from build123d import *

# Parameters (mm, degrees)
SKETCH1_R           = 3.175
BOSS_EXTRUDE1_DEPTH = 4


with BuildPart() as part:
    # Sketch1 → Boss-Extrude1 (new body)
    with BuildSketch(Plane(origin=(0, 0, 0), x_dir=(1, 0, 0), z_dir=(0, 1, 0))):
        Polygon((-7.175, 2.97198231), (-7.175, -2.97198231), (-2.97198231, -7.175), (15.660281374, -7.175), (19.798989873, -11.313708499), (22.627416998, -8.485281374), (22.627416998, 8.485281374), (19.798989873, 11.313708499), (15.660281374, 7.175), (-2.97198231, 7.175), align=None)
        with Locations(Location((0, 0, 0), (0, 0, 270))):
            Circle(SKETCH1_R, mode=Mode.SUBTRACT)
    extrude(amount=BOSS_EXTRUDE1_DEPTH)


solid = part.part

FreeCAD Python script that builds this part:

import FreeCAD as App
import Part
import Sketcher
from FreeCAD import Vector


def add_polygon(sketch, points):
    """Adds a closed chain of lines whose ends are joined by coincident constraints."""
    first, n = sketch.GeometryCount, len(points)
    for a, b in zip(points, points[1:] + points[:1]):
        sketch.addGeometry(Part.LineSegment(App.Vector(*a, 0), App.Vector(*b, 0)), False)
    for i in range(n):
        sketch.addConstraint(Sketcher.Constraint("Coincident", first + i, 2, first + (i + 1) % n, 1))

doc = App.newDocument("Part")
params = doc.addObject("Spreadsheet::Sheet", "Params")
for row, (alias, value) in enumerate([
    ("sketch1_diameter", "6.35 mm"),
    ("sketch1_length", "4 mm"),
    ("pad1_length", "4 mm"),
], start=1):
    params.set(f"A{row}", alias)
    params.set(f"B{row}", "=" + value)
    params.setAlias(f"B{row}", alias)

body = doc.addObject("PartDesign::Body", "Body")

# Sketch on XZ plane
sketch1 = body.newObject("Sketcher::SketchObject", "Sketch")
sketch1.AttachmentSupport = (doc.getObject("XZ_Plane"), [""])
sketch1.MapMode = "FlatFace"
add_polygon(sketch1, [(-7.2, -3), (-7.2, 3), (-3, 7.2), (15.7, 7.2), (19.8, 11.3), (22.6, 8.5), (22.6, -8.5), (19.8, -11.3), (15.7, -7.2), (-3, -7.2)])  # lines 0-9
sketch1.addGeometry(Part.Circle(Vector(0, 0, 0), Vector(0, 0, 1), 3.2), False)  # 10
sketch1.addConstraint(Sketcher.Constraint("Vertical", 0))
sketch1.addConstraint(Sketcher.Constraint("Horizontal", 2))
sketch1.addConstraint(Sketcher.Constraint("Vertical", 5))
sketch1.addConstraint(Sketcher.Constraint("Horizontal", 8))
sketch1.addConstraint(Sketcher.Constraint("Coincident", 10, 3, -1, 1))
sketch1.addConstraint(Sketcher.Constraint("Symmetric", 3, 2, 6, 2, -1))
sketch1.addConstraint(Sketcher.Constraint("Symmetric", 2, 2, 7, 2, -1))
sketch1.addConstraint(Sketcher.Constraint("Parallel", 1, 3))
sketch1.addConstraint(Sketcher.Constraint("Perpendicular", 3, 4))
sketch1.addConstraint(Sketcher.Constraint("Perpendicular", 4, 6))
sketch1.addConstraint(Sketcher.Constraint("Perpendicular", 6, 7))
sketch1.addConstraint(Sketcher.Constraint("Parallel", 7, 9))
sketch1.addConstraint(Sketcher.Constraint("Vertical", 1, 2, 8, 2))
sketch1.addConstraint(Sketcher.Constraint("Diameter", 10, 6.35))
sketch1.addConstraint(Sketcher.Constraint("Distance", 4, 4.0))
sketch1.addConstraint(Sketcher.Constraint("DistanceY", 7, 2, 2, 2, 14.35))
sketch1.addConstraint(Sketcher.Constraint("DistanceX", 0, 2, -1, 1, 7.175))
sketch1.addConstraint(Sketcher.Constraint("DistanceX", 1, 2, 4, 2, 25.599399))
sketch1.addConstraint(Sketcher.Constraint("DistanceY", 0, 2, 4, 2, 5.513299))
sketch1.addConstraint(Sketcher.Constraint("DistanceX", 2, 1, 2, 2, 18.632264))
sketch1.setExpression("Constraints[23]", "Params.sketch1_diameter")
sketch1.setExpression("Constraints[24]", "Params.sketch1_length")
pad1 = body.newObject("PartDesign::Pad", "Pad")
pad1.Profile = sketch1
pad1.setExpression("Length", "Params.pad1_length")
pad1.Reversed = True

doc.recompute()
